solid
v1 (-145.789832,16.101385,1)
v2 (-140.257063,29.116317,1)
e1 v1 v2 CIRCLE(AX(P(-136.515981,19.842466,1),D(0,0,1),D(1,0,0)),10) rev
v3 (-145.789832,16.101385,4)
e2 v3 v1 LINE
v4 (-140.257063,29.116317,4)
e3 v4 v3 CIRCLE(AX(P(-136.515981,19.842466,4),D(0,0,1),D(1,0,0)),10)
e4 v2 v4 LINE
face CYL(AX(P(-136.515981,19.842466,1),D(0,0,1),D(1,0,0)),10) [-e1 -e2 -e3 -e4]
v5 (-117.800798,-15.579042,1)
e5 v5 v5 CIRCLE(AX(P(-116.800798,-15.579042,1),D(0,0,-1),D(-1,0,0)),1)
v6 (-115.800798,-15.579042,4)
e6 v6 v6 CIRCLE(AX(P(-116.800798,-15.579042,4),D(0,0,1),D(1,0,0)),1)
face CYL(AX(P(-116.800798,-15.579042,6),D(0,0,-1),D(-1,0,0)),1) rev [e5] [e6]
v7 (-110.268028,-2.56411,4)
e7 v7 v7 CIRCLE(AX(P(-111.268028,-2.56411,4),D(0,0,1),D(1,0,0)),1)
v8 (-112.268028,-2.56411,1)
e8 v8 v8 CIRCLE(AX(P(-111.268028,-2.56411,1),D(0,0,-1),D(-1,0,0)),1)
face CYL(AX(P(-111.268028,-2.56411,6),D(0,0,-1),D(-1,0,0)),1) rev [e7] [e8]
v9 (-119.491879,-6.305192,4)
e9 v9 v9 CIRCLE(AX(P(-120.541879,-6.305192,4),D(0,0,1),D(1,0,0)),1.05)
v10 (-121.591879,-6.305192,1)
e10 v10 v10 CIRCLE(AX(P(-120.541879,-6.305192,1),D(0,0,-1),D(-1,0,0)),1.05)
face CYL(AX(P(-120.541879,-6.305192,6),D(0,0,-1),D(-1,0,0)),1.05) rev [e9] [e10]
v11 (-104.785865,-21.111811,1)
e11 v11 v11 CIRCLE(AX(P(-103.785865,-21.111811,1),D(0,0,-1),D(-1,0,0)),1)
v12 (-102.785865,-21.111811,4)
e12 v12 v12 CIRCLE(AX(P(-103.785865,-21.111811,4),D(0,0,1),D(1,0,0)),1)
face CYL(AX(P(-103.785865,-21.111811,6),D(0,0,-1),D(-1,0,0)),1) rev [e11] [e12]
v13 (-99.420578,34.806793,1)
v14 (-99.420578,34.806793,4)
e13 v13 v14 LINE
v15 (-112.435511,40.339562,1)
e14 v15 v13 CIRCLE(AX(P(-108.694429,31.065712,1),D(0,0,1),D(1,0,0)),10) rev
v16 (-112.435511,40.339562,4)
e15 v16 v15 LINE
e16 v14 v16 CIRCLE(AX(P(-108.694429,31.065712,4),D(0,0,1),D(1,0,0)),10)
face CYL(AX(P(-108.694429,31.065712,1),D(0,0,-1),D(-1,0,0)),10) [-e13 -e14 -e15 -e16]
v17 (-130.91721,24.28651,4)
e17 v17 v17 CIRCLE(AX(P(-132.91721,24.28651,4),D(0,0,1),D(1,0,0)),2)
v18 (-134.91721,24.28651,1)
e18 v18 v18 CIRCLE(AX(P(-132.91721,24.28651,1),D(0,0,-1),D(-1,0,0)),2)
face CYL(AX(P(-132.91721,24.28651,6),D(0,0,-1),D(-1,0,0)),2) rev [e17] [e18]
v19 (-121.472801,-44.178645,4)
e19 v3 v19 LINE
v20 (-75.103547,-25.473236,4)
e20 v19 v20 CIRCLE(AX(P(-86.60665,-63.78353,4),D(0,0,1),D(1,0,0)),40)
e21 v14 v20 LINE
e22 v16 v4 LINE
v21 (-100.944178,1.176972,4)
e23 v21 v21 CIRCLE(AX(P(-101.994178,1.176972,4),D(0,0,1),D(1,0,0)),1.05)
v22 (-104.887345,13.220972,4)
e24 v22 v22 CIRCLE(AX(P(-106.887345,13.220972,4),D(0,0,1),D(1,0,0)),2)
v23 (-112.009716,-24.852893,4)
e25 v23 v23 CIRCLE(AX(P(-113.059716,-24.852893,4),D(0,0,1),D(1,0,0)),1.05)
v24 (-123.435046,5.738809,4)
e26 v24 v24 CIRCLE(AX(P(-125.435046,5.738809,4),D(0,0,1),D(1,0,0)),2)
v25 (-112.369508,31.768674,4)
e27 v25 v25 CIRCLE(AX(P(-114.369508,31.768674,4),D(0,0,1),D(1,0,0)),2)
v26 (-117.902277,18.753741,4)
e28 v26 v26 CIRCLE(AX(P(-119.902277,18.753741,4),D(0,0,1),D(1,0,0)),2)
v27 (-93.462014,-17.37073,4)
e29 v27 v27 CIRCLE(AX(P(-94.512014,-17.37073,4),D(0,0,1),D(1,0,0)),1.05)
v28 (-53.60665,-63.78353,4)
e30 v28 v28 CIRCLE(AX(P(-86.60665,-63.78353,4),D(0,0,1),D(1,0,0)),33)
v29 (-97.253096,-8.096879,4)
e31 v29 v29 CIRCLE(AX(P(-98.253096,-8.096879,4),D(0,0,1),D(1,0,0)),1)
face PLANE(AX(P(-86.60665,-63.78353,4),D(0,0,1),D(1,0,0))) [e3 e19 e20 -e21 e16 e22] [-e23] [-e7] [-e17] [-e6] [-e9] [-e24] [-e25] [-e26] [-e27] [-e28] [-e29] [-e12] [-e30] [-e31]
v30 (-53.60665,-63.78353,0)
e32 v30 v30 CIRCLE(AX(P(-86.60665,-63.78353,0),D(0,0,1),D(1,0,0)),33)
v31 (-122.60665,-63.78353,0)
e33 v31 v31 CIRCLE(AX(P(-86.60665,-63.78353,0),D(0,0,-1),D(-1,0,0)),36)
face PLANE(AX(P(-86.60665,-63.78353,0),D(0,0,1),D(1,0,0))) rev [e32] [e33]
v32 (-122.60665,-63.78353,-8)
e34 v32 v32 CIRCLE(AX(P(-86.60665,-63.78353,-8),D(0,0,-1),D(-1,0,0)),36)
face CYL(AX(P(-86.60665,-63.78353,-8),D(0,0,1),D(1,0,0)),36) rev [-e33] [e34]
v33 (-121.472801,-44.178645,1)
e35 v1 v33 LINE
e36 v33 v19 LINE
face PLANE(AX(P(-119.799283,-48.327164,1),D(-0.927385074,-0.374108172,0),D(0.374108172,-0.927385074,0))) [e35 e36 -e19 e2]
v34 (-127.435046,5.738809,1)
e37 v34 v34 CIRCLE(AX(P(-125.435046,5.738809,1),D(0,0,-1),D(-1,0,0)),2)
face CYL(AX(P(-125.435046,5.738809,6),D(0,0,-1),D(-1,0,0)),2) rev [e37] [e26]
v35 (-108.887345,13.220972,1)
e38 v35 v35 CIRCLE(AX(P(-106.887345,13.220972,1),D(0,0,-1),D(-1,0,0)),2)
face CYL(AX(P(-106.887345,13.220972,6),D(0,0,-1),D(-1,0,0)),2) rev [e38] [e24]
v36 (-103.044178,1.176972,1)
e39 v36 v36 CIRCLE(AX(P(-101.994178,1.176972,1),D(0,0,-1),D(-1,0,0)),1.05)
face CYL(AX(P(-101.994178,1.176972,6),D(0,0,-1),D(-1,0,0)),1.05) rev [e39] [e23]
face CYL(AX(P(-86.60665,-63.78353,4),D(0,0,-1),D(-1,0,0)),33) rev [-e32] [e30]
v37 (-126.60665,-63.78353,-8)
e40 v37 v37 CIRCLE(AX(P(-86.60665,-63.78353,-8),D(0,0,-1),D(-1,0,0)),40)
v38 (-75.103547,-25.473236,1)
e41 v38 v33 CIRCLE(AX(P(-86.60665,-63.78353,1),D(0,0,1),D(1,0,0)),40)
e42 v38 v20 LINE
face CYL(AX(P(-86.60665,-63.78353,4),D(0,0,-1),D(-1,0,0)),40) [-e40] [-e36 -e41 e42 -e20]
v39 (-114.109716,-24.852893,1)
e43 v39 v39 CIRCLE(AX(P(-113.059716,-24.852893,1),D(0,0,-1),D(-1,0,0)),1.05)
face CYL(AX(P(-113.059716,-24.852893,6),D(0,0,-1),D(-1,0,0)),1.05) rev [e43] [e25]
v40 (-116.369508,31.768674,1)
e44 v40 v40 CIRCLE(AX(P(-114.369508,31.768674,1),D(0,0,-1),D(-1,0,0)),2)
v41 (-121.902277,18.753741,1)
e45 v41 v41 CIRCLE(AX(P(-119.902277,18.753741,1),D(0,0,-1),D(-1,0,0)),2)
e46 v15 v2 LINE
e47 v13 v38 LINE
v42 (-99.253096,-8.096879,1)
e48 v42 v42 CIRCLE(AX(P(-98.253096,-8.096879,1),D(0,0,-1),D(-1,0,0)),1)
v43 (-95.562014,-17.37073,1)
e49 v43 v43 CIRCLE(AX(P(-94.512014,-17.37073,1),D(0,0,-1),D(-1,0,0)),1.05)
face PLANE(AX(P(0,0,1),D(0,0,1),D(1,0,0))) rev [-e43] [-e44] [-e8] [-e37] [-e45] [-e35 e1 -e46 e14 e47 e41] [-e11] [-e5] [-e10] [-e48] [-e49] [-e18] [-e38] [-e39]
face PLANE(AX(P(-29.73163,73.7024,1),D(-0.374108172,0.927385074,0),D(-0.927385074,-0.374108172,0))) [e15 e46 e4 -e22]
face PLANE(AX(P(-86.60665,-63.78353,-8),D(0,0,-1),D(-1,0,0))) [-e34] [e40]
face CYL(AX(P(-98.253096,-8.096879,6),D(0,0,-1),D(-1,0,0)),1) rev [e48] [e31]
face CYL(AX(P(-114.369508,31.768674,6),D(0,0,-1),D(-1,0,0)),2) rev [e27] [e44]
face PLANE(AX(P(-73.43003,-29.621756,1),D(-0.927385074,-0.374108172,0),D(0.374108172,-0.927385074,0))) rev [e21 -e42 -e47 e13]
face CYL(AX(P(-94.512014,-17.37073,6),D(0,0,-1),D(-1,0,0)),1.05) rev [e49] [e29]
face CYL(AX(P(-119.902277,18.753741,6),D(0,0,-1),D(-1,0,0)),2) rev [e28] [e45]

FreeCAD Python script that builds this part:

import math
import FreeCAD as App
import Part
import Sketcher
from FreeCAD import Vector
Q = App.Units.Quantity


def edges_at(feature, points):
    """Names of the edges that pass closest to the given points."""
    edges = feature.Shape.Edges
    near = lambda p: min(range(len(edges)), key=lambda i: edges[i].distToShape(Part.Vertex(*p))[0])
    return sorted({f"Edge{near(p) + 1}" for p in points})

doc = App.newDocument("Part")
params = doc.addObject("Spreadsheet::Sheet", "Params")
for row, (alias, value) in enumerate([
    ("sketch1_diameter", "80 mm"),
    ("sketch1_diameter2", "66 mm"),
    ("pad1_length", "4 mm"),
    ("sketch2_diameter", "80 mm"),
    ("sketch2_diameter2", "72 mm"),
    ("pad2_length", "8 mm"),
    ("sketch3_length", "50 mm"),
    ("pad3_length", "3 mm"),
    ("sketch4_diameter", "2 mm"),
    ("sketch4_diameter2", "4 mm"),
    ("sketch4_diameter3", "2.1 mm"),
    ("pocket1_length", "5 mm"),
    ("fillet_radius", "10 mm"),
], start=1):
    params.set(f"A{row}", alias)
    params.set(f"B{row}", "=" + value)
    params.setAlias(f"B{row}", alias)

body = doc.addObject("PartDesign::Body", "Body")

sketch1 = body.newObject("Sketcher::SketchObject", "Sketch")
sketch1.AttachmentSupport = (doc.getObject("XY_Plane"), [""])
sketch1.MapMode = "FlatFace"
sketch1.addGeometry([
    Part.Circle(Vector(-87, -64, 0), Vector(0, 0, 1), 40),
    Part.Circle(Vector(-87, -64, 0), Vector(0, 0, 1), 33),
], False)
sketch1.addConstraint([
    Sketcher.Constraint("Coincident", 1, 3, 0, 3),
    Sketcher.Constraint("Diameter", 0, Q("80 mm")),
    Sketcher.Constraint("Diameter", 1, Q("66 mm")),
    Sketcher.Constraint("DistanceX", 0, 3, -1, 1, Q("86.60665 mm")),
    Sketcher.Constraint("DistanceY", 0, 3, -1, 1, Q("63.78353 mm")),
])
sketch1.setExpression("Constraints[1]", "Params.sketch1_diameter")
sketch1.setExpression("Constraints[2]", "Params.sketch1_diameter2")
pad1 = body.newObject("PartDesign::Pad", "Pad")
pad1.Profile = sketch1
pad1.setExpression("Length", "Params.pad1_length")

sketch2 = body.newObject("Sketcher::SketchObject", "Sketch001")
sketch2.AttachmentSupport = (doc.getObject("XY_Plane"), [""])
sketch2.MapMode = "FlatFace"
sketch2.AttachmentOffset = App.Placement(Vector(0, 0, -8), App.Rotation())
sketch2.addGeometry([
    Part.Circle(Vector(-87, -64, 0), Vector(0, 0, 1), 40),
    Part.Circle(Vector(-87, -64, 0), Vector(0, 0, 1), 36),
], False)
sketch2.addConstraint([
    Sketcher.Constraint("Coincident", 1, 3, 0, 3),
    Sketcher.Constraint("Diameter", 0, Q("80 mm")),
    Sketcher.Constraint("Diameter", 1, Q("72 mm")),
    Sketcher.Constraint("DistanceX", 0, 3, -1, 1, Q("86.60665 mm")),
    Sketcher.Constraint("DistanceY", 0, 3, -1, 1, Q("63.78353 mm")),
])
sketch2.setExpression("Constraints[1]", "Params.sketch2_diameter")
sketch2.setExpression("Constraints[2]", "Params.sketch2_diameter2")
pad2 = body.newObject("PartDesign::Pad", "Pad001")
pad2.Profile = sketch2
pad2.setExpression("Length", "Params.pad2_length")

sketch3 = body.newObject("Sketcher::SketchObject", "Sketch002")
sketch3.AttachmentSupport = (doc.getObject("XY_Plane"), [""])
sketch3.MapMode = "FlatFace"
sketch3.AttachmentOffset = App.Placement(Vector(0, 0, 4), App.Rotation())
sketch3.addGeometry([
    Part.LineSegment(Vector(-103, 44, 0), Vector(-150, 25, 0)),
    Part.LineSegment(Vector(-150, 25, 0), Vector(-119, -49, 0)),
    Part.ArcOfCircle(Part.Circle(Vector(-86, -64, 0), Vector(0, 0, 1), 36), math.radians(68), math.radians(156)),
    Part.LineSegment(Vector(-73, -30, 0), Vector(-103, 44, 0)),
], False)
sketch3.addConstraint([
    Sketcher.Constraint("Coincident", 0, 2, 1, 1),
    Sketcher.Constraint("Coincident", 1, 2, 2, 2),
    Sketcher.Constraint("Coincident", 2, 1, 3, 1),
    Sketcher.Constraint("Coincident", 3, 2, 0, 1),
    Sketcher.Constraint("Perpendicular", 0, 1),
    Sketcher.Constraint("Parallel", 1, 3),
    Sketcher.Constraint("Equal", 1, 3),
    Sketcher.Constraint("Distance", 0, Q("50 mm")),
    Sketcher.Constraint("Radius", 2, Q("36.211844 mm")),
    Sketcher.Constraint("Distance", 1, Q("80.394609 mm")),
    Sketcher.Constraint("DistanceX", 2, 3, -1, 1, Q("86.469389 mm")),
    Sketcher.Constraint("DistanceY", 2, 3, -1, 1, Q("64.12379 mm")),
    Sketcher.Constraint("DistanceX", 2, 1, -1, 1, Q("73.08538 mm")),
])
sketch3.setExpression("Constraints[7]", "Params.sketch3_length")
pad3 = body.newObject("PartDesign::Pad", "Pad002")
pad3.Profile = sketch3
pad3.setExpression("Length", "Params.pad3_length")
pad3.Reversed = True

sketch4 = body.newObject("Sketcher::SketchObject", "Sketch003")
sketch4.AttachmentSupport = (doc.getObject("XY_Plane"), [""])
sketch4.MapMode = "FlatFace"
sketch4.AttachmentOffset = App.Placement(Vector(0, 0, 1), App.Rotation())
sketch4.addGeometry([
    Part.Circle(Vector(-113.1, -24.9, 0), Vector(0, 0, 1), 1.1),
    Part.Circle(Vector(-120.5, -6.3, 0), Vector(0, 0, 1), 1.1),
    Part.Circle(Vector(-102, 1.2, 0), Vector(0, 0, 1), 1.1),
    Part.Circle(Vector(-94.5, -17.4, 0), Vector(0, 0, 1), 1.1),
    Part.Circle(Vector(-116.8, -15.6, 0), Vector(0, 0, 1), 1),
    Part.Circle(Vector(-98.3, -8.1, 0), Vector(0, 0, 1), 1),
    Part.Circle(Vector(-103.8, -21.1, 0), Vector(0, 0, 1), 1),
    Part.Circle(Vector(-111.3, -2.6, 0), Vector(0, 0, 1), 1),
    Part.Circle(Vector(-114.4, 31.8, 0), Vector(0, 0, 1), 2),
    Part.Circle(Vector(-132.9, 24.3, 0), Vector(0, 0, 1), 2),
    Part.Circle(Vector(-119.9, 18.8, 0), Vector(0, 0, 1), 2),
    Part.Circle(Vector(-125.4, 5.7, 0), Vector(0, 0, 1), 2),
    Part.Circle(Vector(-106.9, 13.2, 0), Vector(0, 0, 1), 2),
], False)
sketch4.addConstraint([
    Sketcher.Constraint("Equal", 0, 1),
    Sketcher.Constraint("Equal", 1, 2),
    Sketcher.Constraint("Equal", 2, 3),
    Sketcher.Constraint("Equal", 4, 5),
    Sketcher.Constraint("Equal", 5, 6),
    Sketcher.Constraint("Equal", 6, 7),
    Sketcher.Constraint("Equal", 8, 9),
    Sketcher.Constraint("Equal", 9, 10),
    Sketcher.Constraint("Equal", 10, 11),
    Sketcher.Constraint("Equal", 11, 12),
    Sketcher.Constraint("Diameter", 4, Q("2 mm")),
    Sketcher.Constraint("Diameter", 8, Q("4 mm")),
    Sketcher.Constraint("Diameter", 0, Q("2.1 mm")),
    Sketcher.Constraint("DistanceY", 1, 3, 11, 3, Q("12.044 mm")),
    Sketcher.Constraint("DistanceY", 2, 3, 12, 3, Q("12.044 mm")),
    Sketcher.Constraint("DistanceY", 0, 3, 1, 3, Q("18.547701 mm")),
    Sketcher.Constraint("DistanceX", 1, 3, 2, 3, Q("18.547701 mm")),
    Sketcher.Constraint("DistanceY", 3, 3, 2, 3, Q("18.547701 mm")),
    Sketcher.Constraint("DistanceX", 0, 3, 3, 3, Q("18.547701 mm")),
    Sketcher.Constraint("DistanceX", 4, 3, 5, 3, Q("18.547701 mm")),
    Sketcher.Constraint("DistanceY", 6, 3, 7, 3, Q("18.547701 mm")),
    Sketcher.Constraint("DistanceY", 2, 3, 8, 3, Q("30.591702 mm")),
    Sketcher.Constraint("DistanceX", 9, 3, 8, 3, Q("18.547701 mm")),
    Sketcher.Constraint("DistanceY", 1, 3, 9, 3, Q("30.591702 mm")),
    Sketcher.Constraint("DistanceX", 10, 3, 2, 3, Q("17.908099 mm")),
    Sketcher.Constraint("DistanceX", 11, 3, 12, 3, Q("18.547701 mm")),
    Sketcher.Constraint("DistanceX", 1, 3, -1, 1, Q("120.541879 mm")),
    Sketcher.Constraint("DistanceY", 1, 3, -1, 1, Q("6.305192 mm")),
    Sketcher.Constraint("DistanceY", -1, 1, 2, 3, Q("1.176972 mm")),
    Sketcher.Constraint("DistanceY", 5, 3, -1, 1, Q("8.096879 mm")),
    Sketcher.Constraint("DistanceY", 6, 3, -1, 1, Q("21.111811 mm")),
    Sketcher.Constraint("DistanceX", 7, 3, -1, 1, Q("111.268028 mm")),
    Sketcher.Constraint("DistanceX", 8, 3, -1, 1, Q("114.369508 mm")),
    Sketcher.Constraint("DistanceY", -1, 1, 10, 3, Q("18.753741 mm")),
    Sketcher.Constraint("DistanceX", 0, 3, 2, 3, Q("11.065538 mm")),
    Sketcher.Constraint("DistanceX", 4, 3, 0, 3, Q("3.741082 mm")),
    Sketcher.Constraint("DistanceY", 0, 3, 4, 3, Q("9.273851 mm")),
    Sketcher.Constraint("DistanceX", 0, 3, 6, 3, Q("9.273851 mm")),
    Sketcher.Constraint("DistanceX", 11, 3, 10, 3, Q("5.532769 mm")),
])
sketch4.setExpression("Constraints[10]", "Params.sketch4_diameter")
sketch4.setExpression("Constraints[11]", "Params.sketch4_diameter2")
sketch4.setExpression("Constraints[12]", "Params.sketch4_diameter3")
pocket1 = body.newObject("PartDesign::Pocket", "Pocket")
pocket1.Profile = sketch4
pocket1.setExpression("Length", "Params.pocket1_length")
pocket1.Reversed = True
doc.recompute()

fillet = body.newObject("PartDesign::Fillet", "Fillet")
fillet.Base = (pocket1, edges_at(pocket1, [(-149.531, 25.375, 2.5), (-103.162, 44.081, 2.5)]))
fillet.setExpression("Radius", "Params.fillet_radius")

doc.recompute()
